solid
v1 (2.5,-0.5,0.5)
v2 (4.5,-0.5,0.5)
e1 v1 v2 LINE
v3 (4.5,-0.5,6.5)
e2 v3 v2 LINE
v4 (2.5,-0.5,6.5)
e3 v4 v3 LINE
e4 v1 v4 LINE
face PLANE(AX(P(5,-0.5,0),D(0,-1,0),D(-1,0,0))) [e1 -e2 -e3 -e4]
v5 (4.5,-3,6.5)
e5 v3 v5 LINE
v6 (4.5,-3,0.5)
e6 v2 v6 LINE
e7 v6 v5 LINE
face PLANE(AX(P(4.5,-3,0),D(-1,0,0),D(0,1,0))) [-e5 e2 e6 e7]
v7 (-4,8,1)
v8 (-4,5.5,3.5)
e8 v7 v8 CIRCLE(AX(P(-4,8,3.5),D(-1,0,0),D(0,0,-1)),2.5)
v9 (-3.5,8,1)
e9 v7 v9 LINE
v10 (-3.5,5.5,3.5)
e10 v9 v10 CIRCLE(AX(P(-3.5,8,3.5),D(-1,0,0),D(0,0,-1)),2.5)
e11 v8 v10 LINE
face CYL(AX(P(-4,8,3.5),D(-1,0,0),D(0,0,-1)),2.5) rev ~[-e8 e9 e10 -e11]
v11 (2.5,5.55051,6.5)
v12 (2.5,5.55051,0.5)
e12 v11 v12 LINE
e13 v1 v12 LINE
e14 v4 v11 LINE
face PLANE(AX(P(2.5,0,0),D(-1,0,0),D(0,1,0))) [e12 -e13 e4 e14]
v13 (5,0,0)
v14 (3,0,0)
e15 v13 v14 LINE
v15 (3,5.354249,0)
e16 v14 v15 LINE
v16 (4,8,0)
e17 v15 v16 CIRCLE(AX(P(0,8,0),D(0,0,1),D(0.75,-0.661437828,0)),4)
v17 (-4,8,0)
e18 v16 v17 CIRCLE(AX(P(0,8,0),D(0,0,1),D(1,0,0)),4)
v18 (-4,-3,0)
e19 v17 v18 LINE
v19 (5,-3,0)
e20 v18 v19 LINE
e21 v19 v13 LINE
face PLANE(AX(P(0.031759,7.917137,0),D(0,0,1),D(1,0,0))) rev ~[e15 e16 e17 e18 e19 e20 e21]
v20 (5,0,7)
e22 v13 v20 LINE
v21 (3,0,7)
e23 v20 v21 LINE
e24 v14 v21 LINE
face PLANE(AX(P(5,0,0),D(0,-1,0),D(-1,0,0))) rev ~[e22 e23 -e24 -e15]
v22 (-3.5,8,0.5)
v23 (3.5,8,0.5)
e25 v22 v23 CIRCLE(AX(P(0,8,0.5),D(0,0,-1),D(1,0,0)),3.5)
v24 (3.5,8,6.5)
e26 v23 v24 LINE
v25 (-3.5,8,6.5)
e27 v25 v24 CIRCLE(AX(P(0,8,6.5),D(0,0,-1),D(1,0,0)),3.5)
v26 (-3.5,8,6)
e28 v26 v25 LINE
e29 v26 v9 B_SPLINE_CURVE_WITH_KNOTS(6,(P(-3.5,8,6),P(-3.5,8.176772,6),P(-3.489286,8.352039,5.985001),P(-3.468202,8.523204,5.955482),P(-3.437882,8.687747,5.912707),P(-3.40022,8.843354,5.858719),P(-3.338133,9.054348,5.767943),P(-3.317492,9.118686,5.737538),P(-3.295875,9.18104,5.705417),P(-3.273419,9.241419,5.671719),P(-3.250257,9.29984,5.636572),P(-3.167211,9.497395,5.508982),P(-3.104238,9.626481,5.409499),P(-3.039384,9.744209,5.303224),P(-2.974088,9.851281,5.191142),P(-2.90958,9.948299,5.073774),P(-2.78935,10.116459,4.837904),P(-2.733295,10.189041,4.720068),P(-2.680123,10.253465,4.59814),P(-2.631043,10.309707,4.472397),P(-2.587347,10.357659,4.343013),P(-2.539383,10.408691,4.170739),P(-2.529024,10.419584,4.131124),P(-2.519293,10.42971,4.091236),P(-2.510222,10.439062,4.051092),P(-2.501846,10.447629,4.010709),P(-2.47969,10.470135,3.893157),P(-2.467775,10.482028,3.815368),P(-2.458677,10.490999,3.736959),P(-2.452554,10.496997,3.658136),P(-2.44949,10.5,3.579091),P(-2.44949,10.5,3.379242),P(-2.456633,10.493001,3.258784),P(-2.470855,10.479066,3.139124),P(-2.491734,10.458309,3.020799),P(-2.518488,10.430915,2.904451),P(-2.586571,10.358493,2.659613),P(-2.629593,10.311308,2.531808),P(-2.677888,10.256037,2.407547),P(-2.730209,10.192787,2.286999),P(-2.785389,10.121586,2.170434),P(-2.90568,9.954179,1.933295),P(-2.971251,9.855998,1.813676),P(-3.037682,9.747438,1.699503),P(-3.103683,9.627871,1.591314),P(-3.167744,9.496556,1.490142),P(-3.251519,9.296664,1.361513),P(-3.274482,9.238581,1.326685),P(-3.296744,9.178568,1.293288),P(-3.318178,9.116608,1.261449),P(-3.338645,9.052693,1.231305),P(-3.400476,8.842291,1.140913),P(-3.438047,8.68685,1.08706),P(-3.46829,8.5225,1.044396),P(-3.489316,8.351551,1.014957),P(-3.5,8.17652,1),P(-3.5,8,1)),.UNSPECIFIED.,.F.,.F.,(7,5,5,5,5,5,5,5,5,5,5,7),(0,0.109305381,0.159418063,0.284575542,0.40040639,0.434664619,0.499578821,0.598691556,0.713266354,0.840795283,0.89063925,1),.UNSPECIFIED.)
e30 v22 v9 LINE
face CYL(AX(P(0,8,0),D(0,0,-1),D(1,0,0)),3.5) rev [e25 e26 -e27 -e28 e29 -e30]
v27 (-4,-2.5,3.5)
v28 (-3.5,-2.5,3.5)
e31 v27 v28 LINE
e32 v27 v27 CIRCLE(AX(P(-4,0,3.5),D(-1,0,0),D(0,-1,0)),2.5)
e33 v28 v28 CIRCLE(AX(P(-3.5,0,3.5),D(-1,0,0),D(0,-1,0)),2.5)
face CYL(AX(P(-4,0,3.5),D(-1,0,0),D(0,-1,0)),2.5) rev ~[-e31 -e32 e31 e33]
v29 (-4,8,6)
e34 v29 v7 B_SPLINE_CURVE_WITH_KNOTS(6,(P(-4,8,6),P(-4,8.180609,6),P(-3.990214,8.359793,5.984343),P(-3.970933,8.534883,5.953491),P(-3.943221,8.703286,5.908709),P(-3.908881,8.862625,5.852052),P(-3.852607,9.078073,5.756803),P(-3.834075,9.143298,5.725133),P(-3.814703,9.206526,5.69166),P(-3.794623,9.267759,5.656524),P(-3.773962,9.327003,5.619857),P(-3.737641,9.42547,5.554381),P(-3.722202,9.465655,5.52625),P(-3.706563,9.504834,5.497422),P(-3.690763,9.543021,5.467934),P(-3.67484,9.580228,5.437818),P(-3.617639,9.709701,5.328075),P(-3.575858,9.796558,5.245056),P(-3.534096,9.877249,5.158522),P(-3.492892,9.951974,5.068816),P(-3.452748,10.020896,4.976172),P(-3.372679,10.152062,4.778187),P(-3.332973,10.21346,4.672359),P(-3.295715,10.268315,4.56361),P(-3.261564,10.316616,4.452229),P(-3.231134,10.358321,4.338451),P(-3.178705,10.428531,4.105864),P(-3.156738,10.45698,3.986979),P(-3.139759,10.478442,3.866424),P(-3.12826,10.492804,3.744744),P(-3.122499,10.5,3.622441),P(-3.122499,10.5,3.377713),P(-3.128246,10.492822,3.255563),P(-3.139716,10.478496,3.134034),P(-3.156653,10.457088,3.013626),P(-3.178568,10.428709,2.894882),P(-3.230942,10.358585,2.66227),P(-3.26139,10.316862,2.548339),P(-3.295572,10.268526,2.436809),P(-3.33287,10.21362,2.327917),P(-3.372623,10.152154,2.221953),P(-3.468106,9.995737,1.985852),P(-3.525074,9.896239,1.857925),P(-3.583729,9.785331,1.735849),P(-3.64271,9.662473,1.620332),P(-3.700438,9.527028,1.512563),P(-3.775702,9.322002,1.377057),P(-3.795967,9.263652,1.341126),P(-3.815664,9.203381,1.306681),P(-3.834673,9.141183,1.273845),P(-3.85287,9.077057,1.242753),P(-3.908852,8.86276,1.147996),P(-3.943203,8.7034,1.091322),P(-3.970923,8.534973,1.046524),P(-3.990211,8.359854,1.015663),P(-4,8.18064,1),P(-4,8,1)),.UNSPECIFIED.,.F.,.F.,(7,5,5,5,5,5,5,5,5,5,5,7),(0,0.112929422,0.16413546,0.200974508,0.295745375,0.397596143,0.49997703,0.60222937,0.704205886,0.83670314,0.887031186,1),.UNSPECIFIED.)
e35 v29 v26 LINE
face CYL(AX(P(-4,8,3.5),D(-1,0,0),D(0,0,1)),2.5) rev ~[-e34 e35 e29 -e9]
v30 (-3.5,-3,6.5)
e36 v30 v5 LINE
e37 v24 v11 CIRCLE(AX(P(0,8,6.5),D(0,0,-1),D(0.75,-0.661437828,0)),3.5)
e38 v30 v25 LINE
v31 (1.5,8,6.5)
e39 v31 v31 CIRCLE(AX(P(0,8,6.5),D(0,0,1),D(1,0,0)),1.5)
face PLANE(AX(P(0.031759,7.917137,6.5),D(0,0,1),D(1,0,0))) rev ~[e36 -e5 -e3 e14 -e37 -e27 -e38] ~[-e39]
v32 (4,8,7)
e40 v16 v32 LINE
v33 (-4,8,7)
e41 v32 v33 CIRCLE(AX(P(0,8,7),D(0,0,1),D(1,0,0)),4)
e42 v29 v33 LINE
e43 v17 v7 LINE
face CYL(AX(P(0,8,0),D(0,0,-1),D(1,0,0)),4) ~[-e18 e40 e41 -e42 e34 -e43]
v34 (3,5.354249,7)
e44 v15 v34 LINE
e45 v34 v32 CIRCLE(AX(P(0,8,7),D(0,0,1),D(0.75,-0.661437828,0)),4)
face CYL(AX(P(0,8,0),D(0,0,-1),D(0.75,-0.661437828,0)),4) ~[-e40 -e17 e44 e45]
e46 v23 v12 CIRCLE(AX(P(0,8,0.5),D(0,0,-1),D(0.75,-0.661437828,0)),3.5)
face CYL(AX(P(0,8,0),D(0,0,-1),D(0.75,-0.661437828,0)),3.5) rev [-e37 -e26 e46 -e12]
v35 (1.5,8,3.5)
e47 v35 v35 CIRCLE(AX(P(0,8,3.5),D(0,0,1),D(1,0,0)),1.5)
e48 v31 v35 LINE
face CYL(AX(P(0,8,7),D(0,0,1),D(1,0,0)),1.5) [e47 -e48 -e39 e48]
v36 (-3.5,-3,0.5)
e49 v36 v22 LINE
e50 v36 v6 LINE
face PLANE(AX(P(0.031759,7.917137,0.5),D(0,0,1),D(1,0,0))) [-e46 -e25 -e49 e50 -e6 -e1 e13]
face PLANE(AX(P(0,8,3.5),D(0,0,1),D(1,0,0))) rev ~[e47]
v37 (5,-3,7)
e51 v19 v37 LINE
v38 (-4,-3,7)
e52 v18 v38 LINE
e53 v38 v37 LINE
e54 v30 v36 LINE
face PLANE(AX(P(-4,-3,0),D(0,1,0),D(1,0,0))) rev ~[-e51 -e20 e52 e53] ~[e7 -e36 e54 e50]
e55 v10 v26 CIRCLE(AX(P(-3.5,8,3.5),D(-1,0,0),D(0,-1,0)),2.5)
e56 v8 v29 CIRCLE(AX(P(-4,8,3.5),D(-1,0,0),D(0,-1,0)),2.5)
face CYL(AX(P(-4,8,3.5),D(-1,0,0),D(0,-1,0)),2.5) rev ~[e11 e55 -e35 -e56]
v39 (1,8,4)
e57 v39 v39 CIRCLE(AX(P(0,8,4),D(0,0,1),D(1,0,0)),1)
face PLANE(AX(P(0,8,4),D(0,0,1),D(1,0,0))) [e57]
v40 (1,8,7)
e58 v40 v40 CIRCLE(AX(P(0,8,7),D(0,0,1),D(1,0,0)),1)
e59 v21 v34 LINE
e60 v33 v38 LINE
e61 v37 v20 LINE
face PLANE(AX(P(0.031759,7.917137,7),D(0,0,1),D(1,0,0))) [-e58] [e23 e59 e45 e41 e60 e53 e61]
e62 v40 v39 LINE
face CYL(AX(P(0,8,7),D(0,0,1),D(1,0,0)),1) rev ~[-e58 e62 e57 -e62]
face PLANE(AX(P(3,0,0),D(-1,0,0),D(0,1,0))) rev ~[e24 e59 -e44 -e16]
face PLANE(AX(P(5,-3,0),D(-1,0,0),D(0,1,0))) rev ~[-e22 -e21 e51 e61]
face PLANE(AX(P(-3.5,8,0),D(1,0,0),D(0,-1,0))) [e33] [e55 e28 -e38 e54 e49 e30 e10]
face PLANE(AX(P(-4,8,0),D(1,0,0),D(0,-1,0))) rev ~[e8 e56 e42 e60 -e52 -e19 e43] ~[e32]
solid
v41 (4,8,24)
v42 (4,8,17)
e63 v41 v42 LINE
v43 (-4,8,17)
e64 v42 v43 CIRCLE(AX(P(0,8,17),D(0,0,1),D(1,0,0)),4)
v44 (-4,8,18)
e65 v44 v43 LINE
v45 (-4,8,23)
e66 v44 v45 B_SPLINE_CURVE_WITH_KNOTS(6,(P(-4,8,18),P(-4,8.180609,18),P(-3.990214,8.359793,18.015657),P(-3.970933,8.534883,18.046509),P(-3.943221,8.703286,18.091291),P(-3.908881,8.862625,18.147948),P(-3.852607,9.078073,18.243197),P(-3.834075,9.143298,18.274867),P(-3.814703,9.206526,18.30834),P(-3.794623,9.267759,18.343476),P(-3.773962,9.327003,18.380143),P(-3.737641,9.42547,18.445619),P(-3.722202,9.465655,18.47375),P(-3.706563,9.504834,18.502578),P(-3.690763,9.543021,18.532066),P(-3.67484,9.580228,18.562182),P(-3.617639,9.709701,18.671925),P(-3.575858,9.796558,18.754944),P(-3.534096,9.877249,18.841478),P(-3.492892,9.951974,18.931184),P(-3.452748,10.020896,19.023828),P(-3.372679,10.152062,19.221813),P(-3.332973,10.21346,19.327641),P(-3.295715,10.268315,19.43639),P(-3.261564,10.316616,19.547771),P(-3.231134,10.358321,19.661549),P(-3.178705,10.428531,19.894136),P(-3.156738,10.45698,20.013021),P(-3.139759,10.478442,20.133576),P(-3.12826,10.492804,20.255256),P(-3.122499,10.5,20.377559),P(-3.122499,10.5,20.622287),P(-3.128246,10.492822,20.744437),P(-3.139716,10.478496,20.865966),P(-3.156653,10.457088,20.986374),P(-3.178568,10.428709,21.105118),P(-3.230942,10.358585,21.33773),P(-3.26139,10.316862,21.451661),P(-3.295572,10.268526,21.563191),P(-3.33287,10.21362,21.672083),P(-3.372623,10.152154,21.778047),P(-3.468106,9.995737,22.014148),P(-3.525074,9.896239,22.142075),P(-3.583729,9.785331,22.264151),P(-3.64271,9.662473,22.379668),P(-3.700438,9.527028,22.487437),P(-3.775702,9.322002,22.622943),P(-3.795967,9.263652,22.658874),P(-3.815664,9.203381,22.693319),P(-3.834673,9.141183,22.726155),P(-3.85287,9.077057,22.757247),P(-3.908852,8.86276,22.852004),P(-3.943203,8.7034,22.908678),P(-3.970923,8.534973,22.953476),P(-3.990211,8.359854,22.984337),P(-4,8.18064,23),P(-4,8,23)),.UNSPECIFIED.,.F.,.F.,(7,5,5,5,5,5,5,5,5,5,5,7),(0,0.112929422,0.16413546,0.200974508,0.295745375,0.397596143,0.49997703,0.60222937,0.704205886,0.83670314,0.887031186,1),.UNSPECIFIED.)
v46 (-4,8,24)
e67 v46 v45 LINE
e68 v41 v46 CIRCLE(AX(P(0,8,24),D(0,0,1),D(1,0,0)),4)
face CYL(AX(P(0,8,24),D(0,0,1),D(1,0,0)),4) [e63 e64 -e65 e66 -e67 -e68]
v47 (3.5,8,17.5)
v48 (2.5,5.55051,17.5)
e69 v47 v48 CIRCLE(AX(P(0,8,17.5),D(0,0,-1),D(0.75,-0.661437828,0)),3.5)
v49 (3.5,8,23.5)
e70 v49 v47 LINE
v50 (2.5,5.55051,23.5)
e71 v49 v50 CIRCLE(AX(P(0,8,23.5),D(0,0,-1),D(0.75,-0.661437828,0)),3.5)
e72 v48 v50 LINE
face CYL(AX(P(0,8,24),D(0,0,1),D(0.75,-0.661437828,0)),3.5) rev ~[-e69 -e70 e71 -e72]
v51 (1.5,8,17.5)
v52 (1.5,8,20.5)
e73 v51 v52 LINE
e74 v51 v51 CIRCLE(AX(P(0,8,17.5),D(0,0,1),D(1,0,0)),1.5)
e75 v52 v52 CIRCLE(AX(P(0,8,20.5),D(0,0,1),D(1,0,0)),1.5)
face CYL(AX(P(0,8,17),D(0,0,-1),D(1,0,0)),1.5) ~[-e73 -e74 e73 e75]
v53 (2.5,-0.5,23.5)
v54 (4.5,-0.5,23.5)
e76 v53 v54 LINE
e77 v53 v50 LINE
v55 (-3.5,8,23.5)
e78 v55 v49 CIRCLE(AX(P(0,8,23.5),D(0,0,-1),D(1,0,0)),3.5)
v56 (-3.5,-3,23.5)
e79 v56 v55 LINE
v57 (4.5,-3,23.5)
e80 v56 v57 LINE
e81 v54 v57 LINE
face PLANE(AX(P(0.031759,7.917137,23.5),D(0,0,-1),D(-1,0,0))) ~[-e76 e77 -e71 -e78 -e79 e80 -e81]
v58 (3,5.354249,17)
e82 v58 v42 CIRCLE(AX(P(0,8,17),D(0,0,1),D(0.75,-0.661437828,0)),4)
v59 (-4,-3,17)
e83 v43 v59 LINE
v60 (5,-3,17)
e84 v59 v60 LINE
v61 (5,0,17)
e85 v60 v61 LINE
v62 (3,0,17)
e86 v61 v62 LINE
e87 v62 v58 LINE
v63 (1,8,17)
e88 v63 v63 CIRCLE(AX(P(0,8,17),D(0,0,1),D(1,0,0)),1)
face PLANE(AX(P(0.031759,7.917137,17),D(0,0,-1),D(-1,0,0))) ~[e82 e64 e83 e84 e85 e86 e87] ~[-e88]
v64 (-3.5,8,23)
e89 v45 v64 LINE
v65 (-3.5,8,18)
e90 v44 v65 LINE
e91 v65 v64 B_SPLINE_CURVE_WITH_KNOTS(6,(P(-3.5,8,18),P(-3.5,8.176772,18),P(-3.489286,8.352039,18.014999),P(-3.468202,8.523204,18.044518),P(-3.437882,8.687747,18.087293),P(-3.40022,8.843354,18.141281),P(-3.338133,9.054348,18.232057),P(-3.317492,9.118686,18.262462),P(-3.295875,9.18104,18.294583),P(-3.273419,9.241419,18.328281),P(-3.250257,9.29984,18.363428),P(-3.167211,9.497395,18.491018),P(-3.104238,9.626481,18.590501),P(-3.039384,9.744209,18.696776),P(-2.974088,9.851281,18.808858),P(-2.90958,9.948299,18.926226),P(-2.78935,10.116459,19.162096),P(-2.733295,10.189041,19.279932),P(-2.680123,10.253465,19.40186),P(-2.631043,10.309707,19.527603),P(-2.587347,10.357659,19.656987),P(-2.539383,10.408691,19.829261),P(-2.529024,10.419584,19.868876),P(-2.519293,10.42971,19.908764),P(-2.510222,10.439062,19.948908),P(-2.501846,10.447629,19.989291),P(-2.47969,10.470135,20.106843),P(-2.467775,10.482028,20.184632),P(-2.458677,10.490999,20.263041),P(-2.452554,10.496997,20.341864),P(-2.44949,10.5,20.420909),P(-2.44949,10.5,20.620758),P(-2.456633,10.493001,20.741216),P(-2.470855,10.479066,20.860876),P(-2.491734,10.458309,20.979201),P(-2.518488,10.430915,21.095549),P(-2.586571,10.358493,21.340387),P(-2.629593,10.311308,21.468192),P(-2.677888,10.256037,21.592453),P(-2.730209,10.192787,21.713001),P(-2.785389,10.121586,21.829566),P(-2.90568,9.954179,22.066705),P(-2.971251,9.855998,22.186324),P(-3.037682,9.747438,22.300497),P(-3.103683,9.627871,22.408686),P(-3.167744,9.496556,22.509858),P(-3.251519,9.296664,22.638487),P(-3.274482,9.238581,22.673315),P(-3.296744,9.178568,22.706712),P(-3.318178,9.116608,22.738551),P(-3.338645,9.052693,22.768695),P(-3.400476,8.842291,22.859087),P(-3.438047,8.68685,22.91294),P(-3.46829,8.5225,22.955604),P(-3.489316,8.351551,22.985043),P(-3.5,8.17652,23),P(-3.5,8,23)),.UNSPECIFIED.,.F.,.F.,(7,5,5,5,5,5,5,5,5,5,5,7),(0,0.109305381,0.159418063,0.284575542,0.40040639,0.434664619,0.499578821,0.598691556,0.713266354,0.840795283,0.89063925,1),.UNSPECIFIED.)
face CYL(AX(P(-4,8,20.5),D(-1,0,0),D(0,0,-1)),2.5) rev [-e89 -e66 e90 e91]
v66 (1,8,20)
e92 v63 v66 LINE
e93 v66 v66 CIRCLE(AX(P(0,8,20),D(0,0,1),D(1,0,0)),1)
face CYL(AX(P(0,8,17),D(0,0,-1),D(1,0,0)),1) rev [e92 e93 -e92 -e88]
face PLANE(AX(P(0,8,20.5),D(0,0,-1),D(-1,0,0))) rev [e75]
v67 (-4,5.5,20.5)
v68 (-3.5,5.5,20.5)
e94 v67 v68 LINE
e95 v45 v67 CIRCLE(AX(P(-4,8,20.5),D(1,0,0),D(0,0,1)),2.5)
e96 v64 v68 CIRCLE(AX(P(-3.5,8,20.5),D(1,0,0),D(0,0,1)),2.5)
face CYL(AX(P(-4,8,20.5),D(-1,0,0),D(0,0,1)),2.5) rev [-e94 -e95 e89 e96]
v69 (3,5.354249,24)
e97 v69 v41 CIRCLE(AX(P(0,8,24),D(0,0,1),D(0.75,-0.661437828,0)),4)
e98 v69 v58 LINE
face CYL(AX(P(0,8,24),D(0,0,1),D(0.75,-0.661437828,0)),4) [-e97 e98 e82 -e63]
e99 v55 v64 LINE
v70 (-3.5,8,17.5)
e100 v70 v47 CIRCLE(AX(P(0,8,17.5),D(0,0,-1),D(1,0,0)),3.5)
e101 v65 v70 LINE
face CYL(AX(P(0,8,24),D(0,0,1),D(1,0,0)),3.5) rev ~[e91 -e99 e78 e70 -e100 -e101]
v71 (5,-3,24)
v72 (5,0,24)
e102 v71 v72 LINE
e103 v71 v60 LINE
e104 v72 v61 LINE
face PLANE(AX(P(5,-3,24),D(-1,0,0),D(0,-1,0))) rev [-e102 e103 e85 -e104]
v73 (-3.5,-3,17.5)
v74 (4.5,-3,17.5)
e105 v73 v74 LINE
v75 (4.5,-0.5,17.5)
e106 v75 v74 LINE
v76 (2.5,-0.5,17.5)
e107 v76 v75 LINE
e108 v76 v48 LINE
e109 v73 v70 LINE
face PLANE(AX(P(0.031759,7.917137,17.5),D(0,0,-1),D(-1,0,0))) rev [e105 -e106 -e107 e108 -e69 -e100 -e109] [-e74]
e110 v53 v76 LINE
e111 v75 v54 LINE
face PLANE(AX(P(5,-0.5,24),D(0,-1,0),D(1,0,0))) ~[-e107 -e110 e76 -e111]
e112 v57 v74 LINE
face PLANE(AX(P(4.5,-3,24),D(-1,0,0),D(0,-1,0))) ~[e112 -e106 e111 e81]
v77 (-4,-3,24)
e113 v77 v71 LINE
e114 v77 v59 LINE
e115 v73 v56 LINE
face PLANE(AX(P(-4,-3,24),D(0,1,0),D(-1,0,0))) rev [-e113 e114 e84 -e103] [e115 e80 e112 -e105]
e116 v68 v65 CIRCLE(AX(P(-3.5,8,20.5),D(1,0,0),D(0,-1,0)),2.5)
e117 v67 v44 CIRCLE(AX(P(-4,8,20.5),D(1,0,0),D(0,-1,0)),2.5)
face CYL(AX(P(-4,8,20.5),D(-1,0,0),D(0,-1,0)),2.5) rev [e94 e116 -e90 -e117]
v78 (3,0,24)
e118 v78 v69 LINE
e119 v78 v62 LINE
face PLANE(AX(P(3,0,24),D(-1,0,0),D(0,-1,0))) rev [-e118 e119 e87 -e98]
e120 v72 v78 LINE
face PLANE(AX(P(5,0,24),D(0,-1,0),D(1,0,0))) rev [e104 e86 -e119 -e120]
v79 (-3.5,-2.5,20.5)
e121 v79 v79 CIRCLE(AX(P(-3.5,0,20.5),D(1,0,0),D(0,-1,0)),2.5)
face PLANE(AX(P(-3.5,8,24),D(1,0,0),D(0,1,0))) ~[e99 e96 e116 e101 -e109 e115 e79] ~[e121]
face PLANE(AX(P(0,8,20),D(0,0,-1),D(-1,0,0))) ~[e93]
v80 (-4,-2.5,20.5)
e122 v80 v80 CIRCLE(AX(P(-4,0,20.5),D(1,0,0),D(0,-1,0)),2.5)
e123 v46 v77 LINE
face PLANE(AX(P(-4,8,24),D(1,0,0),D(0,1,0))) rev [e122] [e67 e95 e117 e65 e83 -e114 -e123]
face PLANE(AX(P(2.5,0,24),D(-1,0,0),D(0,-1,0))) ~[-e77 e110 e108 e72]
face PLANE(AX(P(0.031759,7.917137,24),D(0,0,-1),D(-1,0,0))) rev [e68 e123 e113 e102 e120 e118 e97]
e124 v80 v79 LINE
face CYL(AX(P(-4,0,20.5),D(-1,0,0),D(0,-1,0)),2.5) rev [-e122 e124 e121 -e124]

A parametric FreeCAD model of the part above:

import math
import FreeCAD as App
import Part
import Sketcher


def faces_at(feature, points):
    """Names of the faces that lie closest to the given points."""
    faces = feature.Shape.Faces
    near = lambda p: min(range(len(faces)), key=lambda i: faces[i].distToShape(Part.Vertex(*p))[0])
    return sorted({f"Face{near(p) + 1}" for p in points})

doc = App.newDocument("Part")
body = doc.addObject("PartDesign::Body", "Body")

# Sketch on XY plane
sketch1 = body.newObject("Sketcher::SketchObject", "Sketch")
sketch1.AttachmentSupport = (doc.getObject("XY_Plane"), [""])
sketch1.MapMode = "FlatFace"
sketch1.addGeometry([
    Part.ArcOfCircle(Part.Circle(App.Vector(0, 8, 0), App.Vector(0, 0, 1), 4), math.radians(-41), math.radians(0)),  # 0
    Part.ArcOfCircle(Part.Circle(App.Vector(0, 8, 0), App.Vector(0, 0, 1), 4), math.radians(0), math.radians(180)),  # 1
    Part.LineSegment(App.Vector(-4, 8, 0), App.Vector(-4, -3, 0)),  # 2
    Part.LineSegment(App.Vector(-4, -3, 0), App.Vector(5, -3, 0)),  # 3
    Part.LineSegment(App.Vector(5, -3, 0), App.Vector(5, 0, 0)),  # 4
    Part.LineSegment(App.Vector(5, 0, 0), App.Vector(3, 0, 0)),  # 5
    Part.LineSegment(App.Vector(3, 0, 0), App.Vector(3, 5.4, 0)),  # 6
], False)
sketch1.addConstraint([
    Sketcher.Constraint("Tangent", 0, 2, 1, 1),
    Sketcher.Constraint("Tangent", 1, 2, 2, 1),
    Sketcher.Constraint("Coincident", 2, 2, 3, 1),
    Sketcher.Constraint("Coincident", 3, 2, 4, 1),
    Sketcher.Constraint("Coincident", 4, 2, 5, 1),
    Sketcher.Constraint("Coincident", 5, 2, 6, 1),
    Sketcher.Constraint("Coincident", 6, 2, 0, 1),
    Sketcher.Constraint("Vertical", 2),
    Sketcher.Constraint("Horizontal", 3),
    Sketcher.Constraint("Vertical", 4),
    Sketcher.Constraint("Horizontal", 5),
    Sketcher.Constraint("Vertical", 6),
    Sketcher.Constraint("Equal", 0, 1),
    Sketcher.Constraint("Symmetric", 0, 2, 1, 2, -2),
    Sketcher.Constraint("PointOnObject", 4, 2, -1),
    Sketcher.Constraint("Radius", 0, 4.0),
    Sketcher.Constraint("DistanceX", 3, 1, 3, 2, 9.0),
    Sketcher.Constraint("DistanceX", 5, 2, 5, 1, 2.0),
    Sketcher.Constraint("DistanceY", 2, 2, 2, 1, 11.0),
    Sketcher.Constraint("DistanceY", 4, 1, 4, 2, 3.0),
])
pad1 = body.newObject("PartDesign::Pad", "Pad")
pad1.Profile = sketch1
pad1.Length = 7

# Sketch on XY plane
sketch2 = body.newObject("Sketcher::SketchObject", "Sketch001")
sketch2.AttachmentSupport = (doc.getObject("XY_Plane"), [""])
sketch2.MapMode = "FlatFace"
sketch2.AttachmentOffset = App.Placement(App.Vector(0, 0, 7), App.Rotation())
sketch2.addGeometry(Part.Circle(App.Vector(0, 8, 0), App.Vector(0, 0, 1), 1), False)
sketch2.addConstraint([
    Sketcher.Constraint("PointOnObject", 0, 3, -2),
    Sketcher.Constraint("Diameter", 0, 2.0),
    Sketcher.Constraint("DistanceY", -1, 1, 0, 3, 8.0),
])
pocket1 = body.newObject("PartDesign::Pocket", "Pocket")
pocket1.Profile = sketch2
pocket1.Length = 3
doc.recompute()

thickness = body.newObject("PartDesign::Thickness", "Thickness")
thickness.Base = (pocket1, faces_at(pocket1, [(0.5, -3, 3.5)]))
thickness.Value = 0.5
thickness.Reversed = True
thickness.Join = "Intersection"

# Sketch on YZ plane
sketch3 = body.newObject("Sketcher::SketchObject", "Sketch002")
sketch3.AttachmentSupport = (doc.getObject("YZ_Plane"), [""])
sketch3.MapMode = "FlatFace"
sketch3.AttachmentOffset = App.Placement(App.Vector(0, 0, -4), App.Rotation())
sketch3.addGeometry([
    Part.ArcOfCircle(Part.Circle(App.Vector(8, 3.5, 0), App.Vector(0, 0, 1), 2.5), math.radians(180), math.radians(270)),
    Part.ArcOfCircle(Part.Circle(App.Vector(8, 3.5, 0), App.Vector(0, 0, 1), 2.5), math.radians(90), math.radians(180)),
    Part.ArcOfCircle(Part.Circle(App.Vector(8, 3.5, 0), App.Vector(0, 0, 1), 2.5), math.radians(-90), math.radians(90)),
    Part.Circle(App.Vector(0, 3.5, 0), App.Vector(0, 0, 1), 2.5),
], False)
sketch3.addConstraint([
    Sketcher.Constraint("Tangent", 0, 1, 1, 2),
    Sketcher.Constraint("Tangent", 1, 1, 2, 2),
    Sketcher.Constraint("Tangent", 2, 1, 0, 2),
    Sketcher.Constraint("Equal", 2, 3),
    Sketcher.Constraint("PointOnObject", 3, 3, -2),
    Sketcher.Constraint("Horizontal", 2, 3, 3, 3),
    Sketcher.Constraint("Horizontal", 3, 3, 0, 1),
    Sketcher.Constraint("Vertical", 2, 3, 1, 1),
    Sketcher.Constraint("Vertical", 1, 1, 2, 1),
    Sketcher.Constraint("Diameter", 3, 5.0),
    Sketcher.Constraint("DistanceX", -1, 1, 0, 3, 8.0),
    Sketcher.Constraint("DistanceY", -1, 1, 1, 1, 6.0),
])
pocket2 = body.newObject("PartDesign::Pocket", "Pocket001")
pocket2.Profile = sketch3
pocket2.Length = 2
pocket2.Reversed = True
body2 = doc.addObject("PartDesign::Body", "Body001")
doc.recompute()

mirroring = doc.addObject("Part::Mirroring", "Mirroring")
mirroring.Source = body
mirroring.Base = App.Vector(-0.077961, 3.88344, 12)
mirroring.Normal = App.Vector(0, 0, 1)
body2.BaseFeature = mirroring
doc.recompute()
mirroring.Visibility = False

doc.recompute()
